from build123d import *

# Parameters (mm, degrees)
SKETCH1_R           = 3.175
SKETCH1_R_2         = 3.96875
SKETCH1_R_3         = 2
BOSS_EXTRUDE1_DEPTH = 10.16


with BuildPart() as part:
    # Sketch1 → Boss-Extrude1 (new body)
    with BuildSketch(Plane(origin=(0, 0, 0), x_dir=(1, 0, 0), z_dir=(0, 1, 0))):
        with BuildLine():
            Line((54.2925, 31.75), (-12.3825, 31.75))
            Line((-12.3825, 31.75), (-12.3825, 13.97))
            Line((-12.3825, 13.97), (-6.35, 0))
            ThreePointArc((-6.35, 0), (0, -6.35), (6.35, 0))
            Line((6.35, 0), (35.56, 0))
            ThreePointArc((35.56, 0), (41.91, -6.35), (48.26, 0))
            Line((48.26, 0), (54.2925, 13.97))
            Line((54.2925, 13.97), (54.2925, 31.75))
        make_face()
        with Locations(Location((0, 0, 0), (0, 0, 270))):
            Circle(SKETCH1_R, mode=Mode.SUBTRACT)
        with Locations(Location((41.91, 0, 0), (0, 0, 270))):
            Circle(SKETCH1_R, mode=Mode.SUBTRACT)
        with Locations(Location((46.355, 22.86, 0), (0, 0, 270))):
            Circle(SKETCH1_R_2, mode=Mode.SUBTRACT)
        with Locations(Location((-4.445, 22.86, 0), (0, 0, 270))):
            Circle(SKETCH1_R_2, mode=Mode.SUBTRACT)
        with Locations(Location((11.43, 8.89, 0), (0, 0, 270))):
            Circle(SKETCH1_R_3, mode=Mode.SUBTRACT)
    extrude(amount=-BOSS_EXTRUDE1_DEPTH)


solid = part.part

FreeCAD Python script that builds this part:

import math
import FreeCAD as App
import Part
import Sketcher

V = App.Vector
Q = App.Units.Quantity

doc = App.newDocument("Part")
params = doc.addObject("Spreadsheet::Sheet", "Params")
for row, (alias, value) in enumerate([
    ("sketch1_diameter", "0.25 in"),
    ("sketch1_radius", "0.25 in"),
    ("sketch1_diameter2", "0.3125 in"),
    ("sketch1_height", "0.7 in"),
    ("sketch1_width", "1.15 in"),
    ("pad1_length", "0.4 in"),
], start=1):
    params.set(f"A{row}", alias)
    params.set(f"B{row}", "=" + value)
    params.setAlias(f"B{row}", alias)

body = doc.addObject("PartDesign::Body", "Body")

sketch1 = body.newObject("Sketcher::SketchObject", "Sketch")
sketch1.AttachmentSupport = (doc.getObject("XZ_Plane"), [""])
sketch1.MapMode = "FlatFace"
sketch1.addGeometry([
    Part.LineSegment(V(54.2925, -31.75, 0), V(-12.3825, -31.75, 0)),
    Part.LineSegment(V(-12.3825, -31.75, 0), V(-12.3825, -13.97, 0)),
    Part.LineSegment(V(-12.3825, -13.97, 0), V(-6.35, 0, 0)),
    Part.ArcOfCircle(Part.Circle(V(0, 0, 0), V(0, 0, 1), 6.35), math.radians(0), math.radians(180)),
    Part.LineSegment(V(6.35, 0, 0), V(35.56, 0, 0)),
    Part.ArcOfCircle(Part.Circle(V(41.91, 0, 0), V(0, 0, 1), 6.35), math.radians(0), math.radians(180)),
    Part.LineSegment(V(48.26, 0, 0), V(54.2925, -13.97, 0)),
    Part.LineSegment(V(54.2925, -13.97, 0), V(54.2925, -31.75, 0)),
    Part.Circle(V(0, 0, 0), V(0, 0, 1), 3.175),
    Part.Circle(V(11.43, -8.89, 0), V(0, 0, 1), 2),
    Part.Circle(V(41.91, 0, 0), V(0, 0, 1), 3.175),
    Part.Circle(V(-4.445, -22.86, 0), V(0, 0, 1), 3.96875),
    Part.Circle(V(46.355, -22.86, 0), V(0, 0, 1), 3.96875),
], False)
sketch1.addConstraint([
    Sketcher.Constraint("Coincident", 0, 2, 1, 1),
    Sketcher.Constraint("Coincident", 1, 2, 2, 1),
    Sketcher.Constraint("Coincident", 2, 2, 3, 2),
    Sketcher.Constraint("Coincident", 3, 1, 4, 1),
    Sketcher.Constraint("Coincident", 4, 2, 5, 2),
    Sketcher.Constraint("Coincident", 5, 1, 6, 1),
    Sketcher.Constraint("Coincident", 6, 2, 7, 1),
    Sketcher.Constraint("Coincident", 7, 2, 0, 1),
    Sketcher.Constraint("Horizontal", 0),
    Sketcher.Constraint("Vertical", 1),
    Sketcher.Constraint("Horizontal", 4),
    Sketcher.Constraint("Vertical", 7),
    Sketcher.Constraint("Coincident", 3, 3, -1, 1),
    Sketcher.Constraint("Coincident", 8, 3, -1, 1),
    Sketcher.Constraint("Coincident", 10, 3, 5, 3),
    Sketcher.Constraint("Equal", 3, 5),
    Sketcher.Constraint("Equal", 8, 10),
    Sketcher.Constraint("Equal", 11, 12),
    Sketcher.Constraint("PointOnObject", 5, 3, -1),
    Sketcher.Constraint("PointOnObject", 2, 2, -1),
    Sketcher.Constraint("PointOnObject", 3, 1, -1),
    Sketcher.Constraint("PointOnObject", 5, 1, -1),
    Sketcher.Constraint("Horizontal", 11, 3, 12, 3),
    Sketcher.Constraint("Horizontal", 1, 2, 6, 2),
    Sketcher.Constraint("Equal", 2, 6),
    Sketcher.Constraint("Diameter", 8, Q("0.25 in")),
    Sketcher.Constraint("Radius", 3, Q("0.25 in")),
    Sketcher.Constraint("Diameter", 11, Q("0.3125 in")),
    Sketcher.Constraint("DistanceY", 1, 1, 1, 2, Q("0.7 in")),
    Sketcher.Constraint("DistanceX", 11, 3, 12, 3, Q("2 in")),
    Sketcher.Constraint("DistanceX", 4, 1, 4, 2, Q("1.15 in")),
    Sketcher.Constraint("DistanceY", 11, 3, -1, 1, Q("0.9 in")),
    Sketcher.Constraint("DistanceX", 9, 3, 5, 3, Q("1.2 in")),
    Sketcher.Constraint("DistanceY", 0, 2, 9, 3, Q("0.9 in")),
    Sketcher.Constraint("Diameter", 9, 4.0),
    Sketcher.Constraint("DistanceX", 0, 2, 0, 1, Q("2.625 in")),
    Sketcher.Constraint("DistanceY", 9, 3, -1, 1, Q("0.35 in")),
    Sketcher.Constraint("DistanceX", 11, 3, -1, 1, Q("0.175 in")),
])
sketch1.setExpression("Constraints[25]", "Params.sketch1_diameter")
sketch1.setExpression("Constraints[26]", "Params.sketch1_radius")
sketch1.setExpression("Constraints[27]", "Params.sketch1_diameter2")
sketch1.setExpression("Constraints[28]", "Params.sketch1_height")
sketch1.setExpression("Constraints[30]", "Params.sketch1_width")
pad1 = body.newObject("PartDesign::Pad", "Pad")
pad1.Profile = sketch1
pad1.setExpression("Length", "Params.pad1_length")

doc.recompute()
